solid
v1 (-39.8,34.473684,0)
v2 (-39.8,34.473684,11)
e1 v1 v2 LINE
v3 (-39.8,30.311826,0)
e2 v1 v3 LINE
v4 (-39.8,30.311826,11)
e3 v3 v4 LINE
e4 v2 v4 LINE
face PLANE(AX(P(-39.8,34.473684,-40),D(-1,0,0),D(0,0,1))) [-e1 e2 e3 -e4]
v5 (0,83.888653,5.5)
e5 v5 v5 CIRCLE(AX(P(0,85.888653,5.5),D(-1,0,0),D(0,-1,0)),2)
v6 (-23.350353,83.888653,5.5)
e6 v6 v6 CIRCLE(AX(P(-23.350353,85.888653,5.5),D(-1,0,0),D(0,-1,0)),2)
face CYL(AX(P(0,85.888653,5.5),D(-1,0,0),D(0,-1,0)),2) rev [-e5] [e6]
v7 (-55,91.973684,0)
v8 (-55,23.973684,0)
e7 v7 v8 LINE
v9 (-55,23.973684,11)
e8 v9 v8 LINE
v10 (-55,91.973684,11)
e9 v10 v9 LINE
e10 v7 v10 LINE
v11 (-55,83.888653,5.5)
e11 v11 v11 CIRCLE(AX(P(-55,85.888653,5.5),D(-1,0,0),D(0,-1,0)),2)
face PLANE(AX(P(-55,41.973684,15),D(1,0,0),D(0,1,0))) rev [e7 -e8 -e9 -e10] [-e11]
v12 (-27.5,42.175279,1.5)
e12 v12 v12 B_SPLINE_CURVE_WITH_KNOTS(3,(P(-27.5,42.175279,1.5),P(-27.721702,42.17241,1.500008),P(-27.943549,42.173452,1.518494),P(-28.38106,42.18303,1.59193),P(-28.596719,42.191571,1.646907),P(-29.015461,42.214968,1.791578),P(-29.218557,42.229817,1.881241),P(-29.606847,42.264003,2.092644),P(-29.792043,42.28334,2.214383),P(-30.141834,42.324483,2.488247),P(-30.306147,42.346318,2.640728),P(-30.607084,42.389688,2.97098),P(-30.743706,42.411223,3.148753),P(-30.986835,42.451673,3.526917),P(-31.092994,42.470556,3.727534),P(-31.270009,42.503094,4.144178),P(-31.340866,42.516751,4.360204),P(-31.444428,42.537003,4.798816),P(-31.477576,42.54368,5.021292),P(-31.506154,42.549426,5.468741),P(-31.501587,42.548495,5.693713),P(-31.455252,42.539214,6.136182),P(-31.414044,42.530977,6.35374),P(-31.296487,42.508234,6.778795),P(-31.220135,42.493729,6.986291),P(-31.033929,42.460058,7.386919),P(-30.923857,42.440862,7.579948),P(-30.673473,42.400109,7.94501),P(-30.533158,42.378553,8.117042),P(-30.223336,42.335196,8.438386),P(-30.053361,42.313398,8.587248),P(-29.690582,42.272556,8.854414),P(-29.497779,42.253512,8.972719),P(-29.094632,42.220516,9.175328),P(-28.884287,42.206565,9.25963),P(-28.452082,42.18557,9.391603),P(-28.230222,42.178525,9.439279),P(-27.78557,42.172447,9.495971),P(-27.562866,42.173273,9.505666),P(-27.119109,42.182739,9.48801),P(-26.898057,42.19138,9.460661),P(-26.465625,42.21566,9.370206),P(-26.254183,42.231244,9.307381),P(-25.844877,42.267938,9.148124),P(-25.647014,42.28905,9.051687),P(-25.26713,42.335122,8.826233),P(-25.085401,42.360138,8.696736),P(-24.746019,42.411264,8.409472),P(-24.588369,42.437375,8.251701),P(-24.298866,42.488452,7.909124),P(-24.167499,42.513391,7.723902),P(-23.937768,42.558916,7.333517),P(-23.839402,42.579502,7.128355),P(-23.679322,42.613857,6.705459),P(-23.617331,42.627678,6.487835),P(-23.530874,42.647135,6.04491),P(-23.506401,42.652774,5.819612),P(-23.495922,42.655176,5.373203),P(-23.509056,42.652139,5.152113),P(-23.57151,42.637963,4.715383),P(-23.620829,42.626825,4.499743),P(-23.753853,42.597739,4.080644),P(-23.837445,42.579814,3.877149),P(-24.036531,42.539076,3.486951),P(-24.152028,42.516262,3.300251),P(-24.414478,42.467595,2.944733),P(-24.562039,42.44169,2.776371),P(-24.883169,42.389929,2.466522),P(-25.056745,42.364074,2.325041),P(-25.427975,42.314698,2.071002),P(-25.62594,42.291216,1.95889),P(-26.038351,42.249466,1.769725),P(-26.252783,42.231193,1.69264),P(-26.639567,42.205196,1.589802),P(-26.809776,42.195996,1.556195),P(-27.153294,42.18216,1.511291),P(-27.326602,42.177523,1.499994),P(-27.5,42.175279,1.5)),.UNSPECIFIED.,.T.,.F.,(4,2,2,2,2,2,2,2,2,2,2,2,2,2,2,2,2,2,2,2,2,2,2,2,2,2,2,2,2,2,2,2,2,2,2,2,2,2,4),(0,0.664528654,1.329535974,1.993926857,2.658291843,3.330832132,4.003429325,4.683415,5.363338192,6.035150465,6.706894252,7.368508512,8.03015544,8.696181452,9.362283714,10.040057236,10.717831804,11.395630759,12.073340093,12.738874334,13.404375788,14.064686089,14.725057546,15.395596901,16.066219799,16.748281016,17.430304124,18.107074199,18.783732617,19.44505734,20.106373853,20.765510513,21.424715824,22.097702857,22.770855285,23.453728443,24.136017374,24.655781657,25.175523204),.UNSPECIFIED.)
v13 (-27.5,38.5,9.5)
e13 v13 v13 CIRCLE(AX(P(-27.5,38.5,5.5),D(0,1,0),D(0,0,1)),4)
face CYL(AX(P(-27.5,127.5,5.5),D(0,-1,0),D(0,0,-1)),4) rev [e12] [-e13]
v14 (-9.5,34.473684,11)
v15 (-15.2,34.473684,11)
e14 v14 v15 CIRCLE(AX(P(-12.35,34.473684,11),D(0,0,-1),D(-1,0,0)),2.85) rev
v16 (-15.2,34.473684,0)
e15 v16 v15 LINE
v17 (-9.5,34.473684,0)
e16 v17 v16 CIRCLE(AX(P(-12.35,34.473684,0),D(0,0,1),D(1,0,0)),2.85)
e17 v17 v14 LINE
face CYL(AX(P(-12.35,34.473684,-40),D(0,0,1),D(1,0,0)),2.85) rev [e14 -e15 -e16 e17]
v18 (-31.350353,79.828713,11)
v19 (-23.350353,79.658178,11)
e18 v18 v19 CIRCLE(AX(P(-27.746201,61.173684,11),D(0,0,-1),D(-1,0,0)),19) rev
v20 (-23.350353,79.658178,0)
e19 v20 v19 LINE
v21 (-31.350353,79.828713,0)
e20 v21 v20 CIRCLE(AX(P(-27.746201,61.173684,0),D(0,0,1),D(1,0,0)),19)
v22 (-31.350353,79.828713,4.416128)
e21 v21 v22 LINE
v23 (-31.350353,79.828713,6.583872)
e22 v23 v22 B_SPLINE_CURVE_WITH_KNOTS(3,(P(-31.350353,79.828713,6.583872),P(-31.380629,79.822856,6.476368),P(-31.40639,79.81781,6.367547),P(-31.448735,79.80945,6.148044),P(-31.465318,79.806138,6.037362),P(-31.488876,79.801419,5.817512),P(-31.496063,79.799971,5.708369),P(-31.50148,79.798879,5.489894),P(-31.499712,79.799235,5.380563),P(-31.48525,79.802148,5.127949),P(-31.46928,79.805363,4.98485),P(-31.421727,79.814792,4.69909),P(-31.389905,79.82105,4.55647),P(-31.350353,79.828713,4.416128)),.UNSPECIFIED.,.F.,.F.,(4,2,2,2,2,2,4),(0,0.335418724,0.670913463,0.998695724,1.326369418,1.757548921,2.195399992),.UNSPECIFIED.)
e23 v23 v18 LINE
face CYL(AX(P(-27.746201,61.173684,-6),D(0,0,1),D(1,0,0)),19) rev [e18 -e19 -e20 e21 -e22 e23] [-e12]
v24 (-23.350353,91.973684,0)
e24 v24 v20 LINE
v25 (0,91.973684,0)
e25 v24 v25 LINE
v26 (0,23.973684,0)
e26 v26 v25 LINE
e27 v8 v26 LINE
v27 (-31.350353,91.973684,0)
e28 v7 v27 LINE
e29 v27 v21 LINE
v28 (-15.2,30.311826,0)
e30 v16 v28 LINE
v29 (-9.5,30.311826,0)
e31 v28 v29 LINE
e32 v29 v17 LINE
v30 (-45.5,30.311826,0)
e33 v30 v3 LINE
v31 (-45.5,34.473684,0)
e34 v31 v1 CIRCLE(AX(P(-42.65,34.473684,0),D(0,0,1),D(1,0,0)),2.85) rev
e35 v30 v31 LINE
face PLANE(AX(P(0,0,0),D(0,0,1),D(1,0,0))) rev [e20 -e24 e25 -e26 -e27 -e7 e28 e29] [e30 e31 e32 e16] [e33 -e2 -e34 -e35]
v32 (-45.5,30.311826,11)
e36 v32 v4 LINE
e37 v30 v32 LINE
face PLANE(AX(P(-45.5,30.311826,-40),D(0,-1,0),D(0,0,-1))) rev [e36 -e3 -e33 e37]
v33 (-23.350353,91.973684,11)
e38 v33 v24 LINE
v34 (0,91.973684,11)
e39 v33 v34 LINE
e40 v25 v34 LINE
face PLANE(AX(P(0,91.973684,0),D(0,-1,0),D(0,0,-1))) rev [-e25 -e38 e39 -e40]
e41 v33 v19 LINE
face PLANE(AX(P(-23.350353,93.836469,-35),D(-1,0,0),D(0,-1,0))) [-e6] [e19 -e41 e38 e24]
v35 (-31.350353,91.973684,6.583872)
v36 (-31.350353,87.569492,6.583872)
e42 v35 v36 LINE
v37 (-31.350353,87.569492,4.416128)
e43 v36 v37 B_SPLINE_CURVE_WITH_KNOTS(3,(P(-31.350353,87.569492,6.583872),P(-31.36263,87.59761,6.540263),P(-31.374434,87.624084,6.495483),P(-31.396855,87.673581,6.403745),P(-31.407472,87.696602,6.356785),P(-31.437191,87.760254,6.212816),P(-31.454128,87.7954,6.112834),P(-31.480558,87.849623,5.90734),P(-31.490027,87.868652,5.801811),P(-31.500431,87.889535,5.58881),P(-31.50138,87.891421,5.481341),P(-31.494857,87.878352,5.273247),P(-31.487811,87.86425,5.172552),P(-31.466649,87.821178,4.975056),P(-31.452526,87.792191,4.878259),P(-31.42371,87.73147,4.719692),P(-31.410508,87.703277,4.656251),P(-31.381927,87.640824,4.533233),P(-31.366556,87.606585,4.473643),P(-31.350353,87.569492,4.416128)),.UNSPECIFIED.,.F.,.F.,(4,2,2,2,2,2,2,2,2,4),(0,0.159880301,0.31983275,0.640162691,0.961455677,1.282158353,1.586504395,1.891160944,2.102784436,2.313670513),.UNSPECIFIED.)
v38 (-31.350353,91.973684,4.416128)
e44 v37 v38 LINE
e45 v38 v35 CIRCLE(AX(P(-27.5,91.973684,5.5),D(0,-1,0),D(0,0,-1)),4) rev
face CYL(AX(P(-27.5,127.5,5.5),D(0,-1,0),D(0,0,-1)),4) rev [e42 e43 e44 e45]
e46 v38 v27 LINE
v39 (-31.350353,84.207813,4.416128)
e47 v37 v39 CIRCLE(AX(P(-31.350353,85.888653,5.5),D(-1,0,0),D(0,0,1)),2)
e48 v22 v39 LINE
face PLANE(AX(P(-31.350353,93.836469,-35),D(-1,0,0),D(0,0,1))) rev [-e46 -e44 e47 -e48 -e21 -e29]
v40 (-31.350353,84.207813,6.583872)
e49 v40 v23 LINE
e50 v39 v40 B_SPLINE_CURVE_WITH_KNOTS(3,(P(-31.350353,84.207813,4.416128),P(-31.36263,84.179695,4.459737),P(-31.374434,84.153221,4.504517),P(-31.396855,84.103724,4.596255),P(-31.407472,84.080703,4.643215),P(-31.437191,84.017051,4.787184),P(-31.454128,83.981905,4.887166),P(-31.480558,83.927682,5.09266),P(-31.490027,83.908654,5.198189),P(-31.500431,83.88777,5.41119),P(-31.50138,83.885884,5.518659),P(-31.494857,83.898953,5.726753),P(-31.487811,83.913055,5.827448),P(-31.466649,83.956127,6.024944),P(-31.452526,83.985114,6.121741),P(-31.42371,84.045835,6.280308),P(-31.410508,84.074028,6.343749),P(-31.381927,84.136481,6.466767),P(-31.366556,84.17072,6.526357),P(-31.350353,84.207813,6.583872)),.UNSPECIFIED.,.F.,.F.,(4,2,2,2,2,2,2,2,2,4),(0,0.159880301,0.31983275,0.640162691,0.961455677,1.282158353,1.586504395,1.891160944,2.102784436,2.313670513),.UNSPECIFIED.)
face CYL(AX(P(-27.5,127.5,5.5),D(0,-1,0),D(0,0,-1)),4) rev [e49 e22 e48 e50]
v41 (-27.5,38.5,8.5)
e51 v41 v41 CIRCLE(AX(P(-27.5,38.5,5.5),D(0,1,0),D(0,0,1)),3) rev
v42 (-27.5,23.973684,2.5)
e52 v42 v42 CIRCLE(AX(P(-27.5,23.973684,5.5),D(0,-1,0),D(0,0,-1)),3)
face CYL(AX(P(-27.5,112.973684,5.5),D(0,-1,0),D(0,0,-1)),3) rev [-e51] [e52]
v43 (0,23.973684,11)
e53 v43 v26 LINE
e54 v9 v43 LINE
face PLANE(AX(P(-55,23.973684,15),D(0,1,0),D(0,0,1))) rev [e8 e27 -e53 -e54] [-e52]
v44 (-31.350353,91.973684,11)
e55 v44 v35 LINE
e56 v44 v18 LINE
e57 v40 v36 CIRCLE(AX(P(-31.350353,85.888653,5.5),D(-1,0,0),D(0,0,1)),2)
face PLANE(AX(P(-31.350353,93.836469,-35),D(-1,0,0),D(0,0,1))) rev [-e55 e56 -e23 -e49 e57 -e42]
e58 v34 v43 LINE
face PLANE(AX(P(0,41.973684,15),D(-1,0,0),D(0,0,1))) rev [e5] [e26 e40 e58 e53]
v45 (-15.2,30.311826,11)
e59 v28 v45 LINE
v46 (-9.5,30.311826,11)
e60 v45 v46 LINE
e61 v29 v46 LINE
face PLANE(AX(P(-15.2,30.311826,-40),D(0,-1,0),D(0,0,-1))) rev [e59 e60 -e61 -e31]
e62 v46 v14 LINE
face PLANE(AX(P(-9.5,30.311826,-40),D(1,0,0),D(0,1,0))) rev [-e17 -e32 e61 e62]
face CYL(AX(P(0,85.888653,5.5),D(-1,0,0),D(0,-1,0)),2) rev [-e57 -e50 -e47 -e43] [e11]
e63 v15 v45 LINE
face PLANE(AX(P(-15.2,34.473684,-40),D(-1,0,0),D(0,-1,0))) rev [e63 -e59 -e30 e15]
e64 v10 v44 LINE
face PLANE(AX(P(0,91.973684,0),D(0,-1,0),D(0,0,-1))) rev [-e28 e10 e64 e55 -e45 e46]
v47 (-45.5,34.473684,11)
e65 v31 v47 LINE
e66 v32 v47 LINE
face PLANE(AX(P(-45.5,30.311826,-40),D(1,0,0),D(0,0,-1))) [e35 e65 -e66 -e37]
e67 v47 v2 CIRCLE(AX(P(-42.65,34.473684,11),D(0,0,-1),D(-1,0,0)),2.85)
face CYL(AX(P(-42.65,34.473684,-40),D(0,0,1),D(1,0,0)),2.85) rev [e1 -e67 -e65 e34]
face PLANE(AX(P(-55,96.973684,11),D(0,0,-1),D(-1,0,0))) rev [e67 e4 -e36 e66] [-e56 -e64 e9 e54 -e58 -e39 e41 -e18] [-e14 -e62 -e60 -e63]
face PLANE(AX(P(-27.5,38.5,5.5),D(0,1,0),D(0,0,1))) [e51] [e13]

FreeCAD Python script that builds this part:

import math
import FreeCAD as App
import Part
import Sketcher

V = App.Vector
Q = App.Units.Quantity

doc = App.newDocument("Part")
body = doc.addObject("PartDesign::Body", "Body")

# Sketch on XY plane
sketch1 = body.newObject("Sketcher::SketchObject", "Sketch")
sketch1.AttachmentSupport = (doc.getObject("XY_Plane"), [""])
sketch1.MapMode = "FlatFace"
sketch1.addGeometry([
    Part.LineSegment(V(-55, 42, 0), V(-55, 24, 0)),
    Part.LineSegment(V(-55, 24, 0), V(0, 24, 0)),
    Part.LineSegment(V(0, 24, 0), V(0, 42, 0)),
    Part.LineSegment(V(0, 42, 0), V(-55, 42, 0)),
], False)
sketch1.addConstraint([
    Sketcher.Constraint("Coincident", 0, 2, 1, 1),
    Sketcher.Constraint("Coincident", 1, 2, 2, 1),
    Sketcher.Constraint("Coincident", 2, 2, 3, 1),
    Sketcher.Constraint("Coincident", 3, 2, 0, 1),
    Sketcher.Constraint("Vertical", 0),
    Sketcher.Constraint("Horizontal", 1),
    Sketcher.Constraint("Vertical", 2),
    Sketcher.Constraint("Horizontal", 3),
    Sketcher.Constraint("PointOnObject", 1, 2, -2),
    Sketcher.Constraint("DistanceX", 1, 1, 1, 2, Q("55 mm")),
    Sketcher.Constraint("DistanceY", 0, 2, 0, 1, Q("18 mm")),
    Sketcher.Constraint("DistanceY", -1, 1, 0, 2, Q("23.973684 mm")),
])
pad1 = body.newObject("PartDesign::Pad", "Pad")
pad1.Profile = sketch1
pad1.Length = 15

# Sketch on XZ plane
sketch2 = body.newObject("Sketcher::SketchObject", "Sketch001")
sketch2.AttachmentSupport = (doc.getObject("XZ_Plane"), [""])
sketch2.MapMode = "FlatFace"
sketch2.AttachmentOffset = App.Placement(V(0, 0, -41.973684), App.Rotation())
sketch2.addGeometry([
    Part.LineSegment(V(-55, 0, 0), V(-55, 15, 0)),
    Part.LineSegment(V(-55, 15, 0), V(0, 15, 0)),
    Part.LineSegment(V(0, 15, 0), V(0, 0, 0)),
    Part.LineSegment(V(0, 0, 0), V(-55, 0, 0)),
], False)
sketch2.addConstraint([
    Sketcher.Constraint("Coincident", 0, 2, 1, 1),
    Sketcher.Constraint("Coincident", 1, 2, 2, 1),
    Sketcher.Constraint("Coincident", 2, 2, 3, 1),
    Sketcher.Constraint("Coincident", 3, 2, 0, 1),
    Sketcher.Constraint("Vertical", 0),
    Sketcher.Constraint("Horizontal", 1),
    Sketcher.Constraint("Vertical", 2),
    Sketcher.Constraint("Horizontal", 3),
    Sketcher.Constraint("Coincident", 2, 2, -1, 1),
    Sketcher.Constraint("DistanceX", 1, 1, 1, 2, Q("55 mm")),
    Sketcher.Constraint("DistanceY", 0, 1, 0, 2, Q("15 mm")),
])
pad2 = body.newObject("PartDesign::Pad", "Pad001")
pad2.Profile = sketch2
pad2.Length = 50
pad2.Reversed = True

# Sketch on XY plane
sketch3 = body.newObject("Sketcher::SketchObject", "Sketch002")
sketch3.AttachmentSupport = (doc.getObject("XY_Plane"), [""])
sketch3.MapMode = "FlatFace"
sketch3.AttachmentOffset = App.Placement(V(0, 0, 15), App.Rotation())
sketch3.addGeometry(Part.Circle(V(-28, 61, 0), V(0, 0, 1), 19), False)
sketch3.addConstraint([
    Sketcher.Constraint("Diameter", 0, Q("38 mm")),
    Sketcher.Constraint("DistanceX", 0, 3, -1, 1, Q("27.746201 mm")),
    Sketcher.Constraint("DistanceY", -1, 1, 0, 3, Q("61.173684 mm")),
])
pocket1 = body.newObject("PartDesign::Pocket", "Pocket")
pocket1.Profile = sketch3
pocket1.Length = 21

# Sketch on XY plane
sketch4 = body.newObject("Sketcher::SketchObject", "Sketch003")
sketch4.AttachmentSupport = (doc.getObject("XY_Plane"), [""])
sketch4.MapMode = "FlatFace"
sketch4.AttachmentOffset = App.Placement(V(0, 0, 15), App.Rotation())
sketch4.addGeometry([
    Part.LineSegment(V(-31, 94, 0), V(-31, 66, 0)),
    Part.LineSegment(V(-31, 66, 0), V(-23, 66, 0)),
    Part.LineSegment(V(-23, 66, 0), V(-23, 94, 0)),
    Part.LineSegment(V(-23, 94, 0), V(-31, 94, 0)),
], False)
sketch4.addConstraint([
    Sketcher.Constraint("Coincident", 0, 2, 1, 1),
    Sketcher.Constraint("Coincident", 1, 2, 2, 1),
    Sketcher.Constraint("Coincident", 2, 2, 3, 1),
    Sketcher.Constraint("Coincident", 3, 2, 0, 1),
    Sketcher.Constraint("Vertical", 0),
    Sketcher.Constraint("Horizontal", 1),
    Sketcher.Constraint("Vertical", 2),
    Sketcher.Constraint("Horizontal", 3),
    Sketcher.Constraint("DistanceX", 1, 1, 1, 2, Q("8 mm")),
    Sketcher.Constraint("DistanceY", 0, 2, 0, 1, Q("27.88449 mm")),
    Sketcher.Constraint("DistanceY", -1, 1, 0, 2, Q("65.951979 mm")),
    Sketcher.Constraint("DistanceX", 0, 2, -1, 1, Q("31.350353 mm")),
])
pocket2 = body.newObject("PartDesign::Pocket", "Pocket001")
pocket2.Profile = sketch4
pocket2.Length = 50

# Sketch on YZ plane
sketch5 = body.newObject("Sketcher::SketchObject", "Sketch004")
sketch5.AttachmentSupport = (doc.getObject("YZ_Plane"), [""])
sketch5.MapMode = "FlatFace"
sketch5.AttachmentOffset = App.Placement(V(0, 0, -55), App.Rotation())
sketch5.addGeometry(Part.Circle(V(85.9, 5.5, 0), V(0, 0, 1), 2), False)
sketch5.addConstraint([
    Sketcher.Constraint("Diameter", 0, Q("4 mm")),
    Sketcher.Constraint("DistanceY", -1, 1, 0, 3, Q("5.5 mm")),
    Sketcher.Constraint("DistanceX", -1, 1, 0, 3, Q("85.888653 mm")),
])
pocket3 = body.newObject("PartDesign::Pocket", "Pocket002")
pocket3.Profile = sketch5
pocket3.Length = 55
pocket3.Reversed = True

# Sketch on XY plane
sketch6 = body.newObject("Sketcher::SketchObject", "Sketch005")
sketch6.AttachmentSupport = (doc.getObject("XY_Plane"), [""])
sketch6.MapMode = "FlatFace"
sketch6.AttachmentOffset = App.Placement(V(0, 0, 15), App.Rotation())
sketch6.addGeometry([
    Part.LineSegment(V(-9.5, 30.3, 0), V(-9.5, 34.5, 0)),  # 0
    Part.ArcOfCircle(Part.Circle(V(-12.3, 34.5, 0), V(0, 0, 1), 2.9), math.radians(0), math.radians(180)),  # 1
    Part.LineSegment(V(-15.2, 34.5, 0), V(-15.2, 30.3, 0)),  # 2
    Part.LineSegment(V(-15.2, 30.3, 0), V(-9.5, 30.3, 0)),  # 3
    Part.LineSegment(V(-45.5, 30.3, 0), V(-39.8, 30.3, 0)),  # 4
    Part.LineSegment(V(-39.8, 30.3, 0), V(-39.8, 34.5, 0)),  # 5
    Part.ArcOfCircle(Part.Circle(V(-42.6, 34.5, 0), V(0, 0, 1), 2.9), math.radians(0), math.radians(180)),  # 6
    Part.LineSegment(V(-45.5, 34.5, 0), V(-45.5, 30.3, 0)),  # 7
], False)
sketch6.addConstraint([
    Sketcher.Constraint("Tangent", 0, 2, 1, 1),
    Sketcher.Constraint("Tangent", 1, 2, 2, 1),
    Sketcher.Constraint("Coincident", 2, 2, 3, 1),
    Sketcher.Constraint("Coincident", 3, 2, 0, 1),
    Sketcher.Constraint("Coincident", 4, 2, 5, 1),
    Sketcher.Constraint("Tangent", 5, 2, 6, 1),
    Sketcher.Constraint("Tangent", 6, 2, 7, 1),
    Sketcher.Constraint("Coincident", 7, 2, 4, 1),
    Sketcher.Constraint("Vertical", 0),
    Sketcher.Constraint("Vertical", 2),
    Sketcher.Constraint("Horizontal", 3),
    Sketcher.Constraint("Horizontal", 4),
    Sketcher.Constraint("Vertical", 5),
    Sketcher.Constraint("Vertical", 7),
    Sketcher.Constraint("Equal", 1, 6),
    Sketcher.Constraint("Horizontal", 1, 3, 6, 3),
    Sketcher.Constraint("Horizontal", 3, 2, 4, 2),
    Sketcher.Constraint("Radius", 1, Q("2.85 mm")),
    Sketcher.Constraint("DistanceX", 0, 2, -1, 1, Q("9.5 mm")),
    Sketcher.Constraint("DistanceX", 4, 2, -1, 1, Q("39.8 mm")),
    Sketcher.Constraint("DistanceY", 0, 1, 0, 2, Q("4.161858 mm")),
    Sketcher.Constraint("DistanceY", -1, 1, 1, 3, Q("34.473684 mm")),
])
pocket4 = body.newObject("PartDesign::Pocket", "Pocket003")
pocket4.Profile = sketch6
pocket4.Length = 55

# Sketch on XZ plane
sketch7 = body.newObject("Sketcher::SketchObject", "Sketch006")
sketch7.AttachmentSupport = (doc.getObject("XZ_Plane"), [""])
sketch7.MapMode = "FlatFace"
sketch7.AttachmentOffset = App.Placement(V(0, 0, -23.973684), App.Rotation())
sketch7.addGeometry([
    Part.LineSegment(V(0, 11, 0), V(0, 15, 0)),
    Part.LineSegment(V(0, 15, 0), V(-55, 15, 0)),
    Part.LineSegment(V(-55, 15, 0), V(-55, 11, 0)),
    Part.LineSegment(V(-55, 11, 0), V(0, 11, 0)),
], False)
sketch7.addConstraint([
    Sketcher.Constraint("Coincident", 0, 2, 1, 1),
    Sketcher.Constraint("Coincident", 1, 2, 2, 1),
    Sketcher.Constraint("Coincident", 2, 2, 3, 1),
    Sketcher.Constraint("Coincident", 3, 2, 0, 1),
    Sketcher.Constraint("Vertical", 0),
    Sketcher.Constraint("Horizontal", 1),
    Sketcher.Constraint("Vertical", 2),
    Sketcher.Constraint("Horizontal", 3),
    Sketcher.Constraint("PointOnObject", 0, 2, -2),
    Sketcher.Constraint("DistanceX", 1, 2, 1, 1, Q("55 mm")),
    Sketcher.Constraint("DistanceY", 0, 1, 0, 2, Q("4 mm")),
    Sketcher.Constraint("DistanceY", -1, 1, 0, 2, Q("15 mm")),
])
pocket5 = body.newObject("PartDesign::Pocket", "Pocket004")
pocket5.Profile = sketch7
pocket5.Length = 73

# Sketch on XZ plane
sketch8 = body.newObject("Sketcher::SketchObject", "Sketch007")
sketch8.AttachmentSupport = (doc.getObject("XZ_Plane"), [""])
sketch8.MapMode = "FlatFace"
sketch8.AttachmentOffset = App.Placement(V(0, 0, -23.973684), App.Rotation())
sketch8.addGeometry(Part.Circle(V(-27.5, 5.5, 0), V(0, 0, 1), 3), False)
sketch8.addConstraint([
    Sketcher.Constraint("Diameter", 0, Q("6 mm")),
    Sketcher.Constraint("DistanceX", 0, 3, -1, 1, Q("27.5 mm")),
    Sketcher.Constraint("DistanceY", -1, 1, 0, 3, Q("5.5 mm")),
])
pocket6 = body.newObject("PartDesign::Pocket", "Pocket005")
pocket6.Profile = sketch8
pocket6.Length = 89

# Sketch on XZ plane
sketch9 = body.newObject("Sketcher::SketchObject", "Sketch008")
sketch9.AttachmentSupport = (doc.getObject("XZ_Plane"), [""])
sketch9.MapMode = "FlatFace"
sketch9.AttachmentOffset = App.Placement(V(0, 0, -38.5), App.Rotation())
sketch9.addGeometry(Part.Circle(V(-27.5, 5.5, 0), V(0, 0, 1), 4), False)
sketch9.addConstraint([
    Sketcher.Constraint("Diameter", 0, Q("8 mm")),
    Sketcher.Constraint("DistanceX", 0, 3, -1, 1, Q("27.5 mm")),
    Sketcher.Constraint("DistanceY", -1, 1, 0, 3, Q("5.5 mm")),
])
pocket7 = body.newObject("PartDesign::Pocket", "Pocket006")
pocket7.Profile = sketch9
pocket7.Length = 89

doc.recompute()
